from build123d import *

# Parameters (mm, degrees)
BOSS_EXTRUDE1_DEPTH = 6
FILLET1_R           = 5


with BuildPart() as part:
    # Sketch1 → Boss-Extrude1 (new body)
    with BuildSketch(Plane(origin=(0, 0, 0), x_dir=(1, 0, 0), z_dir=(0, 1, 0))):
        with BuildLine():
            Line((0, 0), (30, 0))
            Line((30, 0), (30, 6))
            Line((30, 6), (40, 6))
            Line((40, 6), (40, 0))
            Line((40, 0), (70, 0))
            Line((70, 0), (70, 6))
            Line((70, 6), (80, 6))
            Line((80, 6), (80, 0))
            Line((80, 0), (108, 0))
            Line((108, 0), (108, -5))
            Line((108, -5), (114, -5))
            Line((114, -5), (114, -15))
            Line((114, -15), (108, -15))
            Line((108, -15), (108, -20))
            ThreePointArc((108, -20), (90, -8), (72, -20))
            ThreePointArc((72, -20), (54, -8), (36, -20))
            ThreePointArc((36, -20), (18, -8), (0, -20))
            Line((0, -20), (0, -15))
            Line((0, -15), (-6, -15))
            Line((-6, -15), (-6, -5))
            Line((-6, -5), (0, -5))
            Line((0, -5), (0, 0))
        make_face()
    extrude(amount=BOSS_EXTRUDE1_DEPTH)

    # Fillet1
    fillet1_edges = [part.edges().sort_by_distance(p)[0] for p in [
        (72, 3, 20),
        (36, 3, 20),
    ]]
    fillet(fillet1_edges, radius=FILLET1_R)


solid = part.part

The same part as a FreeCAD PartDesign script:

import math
import FreeCAD as App
import Part
import Sketcher


def edges_at(feature, points):
    """Names of the edges that pass closest to the given points."""
    edges = feature.Shape.Edges
    near = lambda p: min(range(len(edges)), key=lambda i: edges[i].distToShape(Part.Vertex(*p))[0])
    return sorted({f"Edge{near(p) + 1}" for p in points})

doc = App.newDocument("Part")
body = doc.addObject("PartDesign::Body", "Body")

# Sketch on XZ plane
sketch1 = doc.addObject("Sketcher::SketchObject", "Sketch")
body.addObject(sketch1)
sketch1.AttachmentSupport = (doc.XZ_Plane, [""])
sketch1.MapMode = "FlatFace"
sketch1.addGeometry(Part.LineSegment(App.Vector(30, 0, 0), App.Vector(0, 0, 0)), False)
sketch1.addGeometry(Part.LineSegment(App.Vector(0, 0, 0), App.Vector(0, 5, 0)), False)
sketch1.addGeometry(Part.LineSegment(App.Vector(0, 5, 0), App.Vector(-6, 5, 0)), False)
sketch1.addGeometry(Part.LineSegment(App.Vector(-6, 5, 0), App.Vector(-6, 15, 0)), False)
sketch1.addGeometry(Part.LineSegment(App.Vector(-6, 15, 0), App.Vector(0, 15, 0)), False)
sketch1.addGeometry(Part.LineSegment(App.Vector(0, 15, 0), App.Vector(0, 20, 0)), False)
sketch1.addGeometry(Part.ArcOfCircle(Part.Circle(App.Vector(18, 28, 0), App.Vector(0, 0, 1), 20), math.radians(-157), math.radians(-23)), False)
sketch1.addGeometry(Part.ArcOfCircle(Part.Circle(App.Vector(54, 28, 0), App.Vector(0, 0, 1), 20), math.radians(-157), math.radians(-23)), False)
sketch1.addGeometry(Part.ArcOfCircle(Part.Circle(App.Vector(90, 28, 0), App.Vector(0, 0, 1), 20), math.radians(-157), math.radians(-23)), False)
sketch1.addGeometry(Part.LineSegment(App.Vector(108, 20, 0), App.Vector(108, 15, 0)), False)
sketch1.addGeometry(Part.LineSegment(App.Vector(108, 15, 0), App.Vector(114, 15, 0)), False)
sketch1.addGeometry(Part.LineSegment(App.Vector(114, 15, 0), App.Vector(114, 5, 0)), False)
sketch1.addGeometry(Part.LineSegment(App.Vector(114, 5, 0), App.Vector(108, 5, 0)), False)
sketch1.addGeometry(Part.LineSegment(App.Vector(108, 5, 0), App.Vector(108, 0, 0)), False)
sketch1.addGeometry(Part.LineSegment(App.Vector(108, 0, 0), App.Vector(80, 0, 0)), False)
sketch1.addGeometry(Part.LineSegment(App.Vector(80, 0, 0), App.Vector(80, -6, 0)), False)
sketch1.addGeometry(Part.LineSegment(App.Vector(80, -6, 0), App.Vector(70, -6, 0)), False)
sketch1.addGeometry(Part.LineSegment(App.Vector(70, -6, 0), App.Vector(70, 0, 0)), False)
sketch1.addGeometry(Part.LineSegment(App.Vector(70, 0, 0), App.Vector(40, 0, 0)), False)
sketch1.addGeometry(Part.LineSegment(App.Vector(40, 0, 0), App.Vector(40, -6, 0)), False)
sketch1.addGeometry(Part.LineSegment(App.Vector(40, -6, 0), App.Vector(30, -6, 0)), False)
sketch1.addGeometry(Part.LineSegment(App.Vector(30, -6, 0), App.Vector(30, 0, 0)), False)
sketch1.addConstraint(Sketcher.Constraint("Coincident", 0, 2, 1, 1))
sketch1.addConstraint(Sketcher.Constraint("Coincident", 1, 2, 2, 1))
sketch1.addConstraint(Sketcher.Constraint("Coincident", 2, 2, 3, 1))
sketch1.addConstraint(Sketcher.Constraint("Coincident", 3, 2, 4, 1))
sketch1.addConstraint(Sketcher.Constraint("Coincident", 4, 2, 5, 1))
sketch1.addConstraint(Sketcher.Constraint("Coincident", 5, 2, 6, 1))
sketch1.addConstraint(Sketcher.Constraint("Coincident", 6, 2, 7, 1))
sketch1.addConstraint(Sketcher.Constraint("Coincident", 7, 2, 8, 1))
sketch1.addConstraint(Sketcher.Constraint("Coincident", 8, 2, 9, 1))
sketch1.addConstraint(Sketcher.Constraint("Coincident", 9, 2, 10, 1))
sketch1.addConstraint(Sketcher.Constraint("Coincident", 10, 2, 11, 1))
sketch1.addConstraint(Sketcher.Constraint("Coincident", 11, 2, 12, 1))
sketch1.addConstraint(Sketcher.Constraint("Coincident", 12, 2, 13, 1))
sketch1.addConstraint(Sketcher.Constraint("Coincident", 13, 2, 14, 1))
sketch1.addConstraint(Sketcher.Constraint("Coincident", 14, 2, 15, 1))
sketch1.addConstraint(Sketcher.Constraint("Coincident", 15, 2, 16, 1))
sketch1.addConstraint(Sketcher.Constraint("Coincident", 16, 2, 17, 1))
sketch1.addConstraint(Sketcher.Constraint("Coincident", 17, 2, 18, 1))
sketch1.addConstraint(Sketcher.Constraint("Coincident", 18, 2, 19, 1))
sketch1.addConstraint(Sketcher.Constraint("Coincident", 19, 2, 20, 1))
sketch1.addConstraint(Sketcher.Constraint("Coincident", 20, 2, 21, 1))
sketch1.addConstraint(Sketcher.Constraint("Coincident", 21, 2, 0, 1))
sketch1.addConstraint(Sketcher.Constraint("Horizontal", 0))
sketch1.addConstraint(Sketcher.Constraint("Vertical", 1))
sketch1.addConstraint(Sketcher.Constraint("Horizontal", 2))
sketch1.addConstraint(Sketcher.Constraint("Vertical", 3))
sketch1.addConstraint(Sketcher.Constraint("Horizontal", 4))
sketch1.addConstraint(Sketcher.Constraint("Vertical", 5))
sketch1.addConstraint(Sketcher.Constraint("Vertical", 9))
sketch1.addConstraint(Sketcher.Constraint("Horizontal", 10))
sketch1.addConstraint(Sketcher.Constraint("Vertical", 11))
sketch1.addConstraint(Sketcher.Constraint("Horizontal", 12))
sketch1.addConstraint(Sketcher.Constraint("Vertical", 13))
sketch1.addConstraint(Sketcher.Constraint("Horizontal", 14))
sketch1.addConstraint(Sketcher.Constraint("Vertical", 15))
sketch1.addConstraint(Sketcher.Constraint("Horizontal", 16))
sketch1.addConstraint(Sketcher.Constraint("Vertical", 17))
sketch1.addConstraint(Sketcher.Constraint("Horizontal", 18))
sketch1.addConstraint(Sketcher.Constraint("Vertical", 19))
sketch1.addConstraint(Sketcher.Constraint("Horizontal", 20))
sketch1.addConstraint(Sketcher.Constraint("Vertical", 21))
sketch1.addConstraint(Sketcher.Constraint("Coincident", 0, 2, -1, 1))
sketch1.addConstraint(Sketcher.Constraint("Equal", 6, 7))
sketch1.addConstraint(Sketcher.Constraint("Equal", 7, 8))
sketch1.addConstraint(Sketcher.Constraint("PointOnObject", 4, 2, -2))
sketch1.addConstraint(Sketcher.Constraint("PointOnObject", 13, 2, -1))
sketch1.addConstraint(Sketcher.Constraint("PointOnObject", 17, 2, -1))
sketch1.addConstraint(Sketcher.Constraint("Horizontal", 6, 3, 7, 3))
sketch1.addConstraint(Sketcher.Constraint("Horizontal", 7, 3, 8, 3))
sketch1.addConstraint(Sketcher.Constraint("Horizontal", 5, 2, 6, 2))
sketch1.addConstraint(Sketcher.Constraint("Horizontal", 6, 2, 7, 2))
sketch1.addConstraint(Sketcher.Constraint("Horizontal", 7, 2, 8, 2))
sketch1.addConstraint(Sketcher.Constraint("Horizontal", 4, 2, 9, 2))
sketch1.addConstraint(Sketcher.Constraint("Horizontal", 2, 2, 11, 2))
sketch1.addConstraint(Sketcher.Constraint("Horizontal", 16, 2, 19, 2))
sketch1.addConstraint(Sketcher.Constraint("Vertical", 9, 2, 12, 2))
sketch1.addConstraint(Sketcher.Constraint("Equal", 4, 10))
sketch1.addConstraint(Sketcher.Constraint("Equal", 0, 18))
sketch1.addConstraint(Sketcher.Constraint("Equal", 16, 20))
sketch1.addConstraint(Sketcher.Constraint("Equal", 20, 3))
sketch1.addConstraint(Sketcher.Constraint("Equal", 1, 5))
sketch1.addConstraint(Sketcher.Constraint("Equal", 12, 15))
sketch1.addConstraint(Sketcher.Constraint("Radius", 6, 19.5))
sketch1.addConstraint(Sketcher.Constraint("DistanceX", 0, 2, 0, 1, 30.0))
sketch1.addConstraint(Sketcher.Constraint("DistanceX", 2, 2, 2, 1, 6.0))
sketch1.addConstraint(Sketcher.Constraint("DistanceX", 14, 2, 14, 1, 28.0))
sketch1.addConstraint(Sketcher.Constraint("DistanceX", 16, 2, 16, 1, 10.0))
sketch1.addConstraint(Sketcher.Constraint("DistanceY", 1, 1, 1, 2, 5.0))
pad1 = doc.addObject("PartDesign::Pad", "Pad")
body.addObject(pad1)
pad1.Profile = sketch1
pad1.Length = 6
pad1.Reversed = True
doc.recompute()

fillet = doc.addObject("PartDesign::Fillet", "Fillet")
body.addObject(fillet)
fillet.Base = (pad1, edges_at(pad1, [(72, 3, 20), (36, 3, 20)]))
fillet.Radius = 5

doc.recompute()
